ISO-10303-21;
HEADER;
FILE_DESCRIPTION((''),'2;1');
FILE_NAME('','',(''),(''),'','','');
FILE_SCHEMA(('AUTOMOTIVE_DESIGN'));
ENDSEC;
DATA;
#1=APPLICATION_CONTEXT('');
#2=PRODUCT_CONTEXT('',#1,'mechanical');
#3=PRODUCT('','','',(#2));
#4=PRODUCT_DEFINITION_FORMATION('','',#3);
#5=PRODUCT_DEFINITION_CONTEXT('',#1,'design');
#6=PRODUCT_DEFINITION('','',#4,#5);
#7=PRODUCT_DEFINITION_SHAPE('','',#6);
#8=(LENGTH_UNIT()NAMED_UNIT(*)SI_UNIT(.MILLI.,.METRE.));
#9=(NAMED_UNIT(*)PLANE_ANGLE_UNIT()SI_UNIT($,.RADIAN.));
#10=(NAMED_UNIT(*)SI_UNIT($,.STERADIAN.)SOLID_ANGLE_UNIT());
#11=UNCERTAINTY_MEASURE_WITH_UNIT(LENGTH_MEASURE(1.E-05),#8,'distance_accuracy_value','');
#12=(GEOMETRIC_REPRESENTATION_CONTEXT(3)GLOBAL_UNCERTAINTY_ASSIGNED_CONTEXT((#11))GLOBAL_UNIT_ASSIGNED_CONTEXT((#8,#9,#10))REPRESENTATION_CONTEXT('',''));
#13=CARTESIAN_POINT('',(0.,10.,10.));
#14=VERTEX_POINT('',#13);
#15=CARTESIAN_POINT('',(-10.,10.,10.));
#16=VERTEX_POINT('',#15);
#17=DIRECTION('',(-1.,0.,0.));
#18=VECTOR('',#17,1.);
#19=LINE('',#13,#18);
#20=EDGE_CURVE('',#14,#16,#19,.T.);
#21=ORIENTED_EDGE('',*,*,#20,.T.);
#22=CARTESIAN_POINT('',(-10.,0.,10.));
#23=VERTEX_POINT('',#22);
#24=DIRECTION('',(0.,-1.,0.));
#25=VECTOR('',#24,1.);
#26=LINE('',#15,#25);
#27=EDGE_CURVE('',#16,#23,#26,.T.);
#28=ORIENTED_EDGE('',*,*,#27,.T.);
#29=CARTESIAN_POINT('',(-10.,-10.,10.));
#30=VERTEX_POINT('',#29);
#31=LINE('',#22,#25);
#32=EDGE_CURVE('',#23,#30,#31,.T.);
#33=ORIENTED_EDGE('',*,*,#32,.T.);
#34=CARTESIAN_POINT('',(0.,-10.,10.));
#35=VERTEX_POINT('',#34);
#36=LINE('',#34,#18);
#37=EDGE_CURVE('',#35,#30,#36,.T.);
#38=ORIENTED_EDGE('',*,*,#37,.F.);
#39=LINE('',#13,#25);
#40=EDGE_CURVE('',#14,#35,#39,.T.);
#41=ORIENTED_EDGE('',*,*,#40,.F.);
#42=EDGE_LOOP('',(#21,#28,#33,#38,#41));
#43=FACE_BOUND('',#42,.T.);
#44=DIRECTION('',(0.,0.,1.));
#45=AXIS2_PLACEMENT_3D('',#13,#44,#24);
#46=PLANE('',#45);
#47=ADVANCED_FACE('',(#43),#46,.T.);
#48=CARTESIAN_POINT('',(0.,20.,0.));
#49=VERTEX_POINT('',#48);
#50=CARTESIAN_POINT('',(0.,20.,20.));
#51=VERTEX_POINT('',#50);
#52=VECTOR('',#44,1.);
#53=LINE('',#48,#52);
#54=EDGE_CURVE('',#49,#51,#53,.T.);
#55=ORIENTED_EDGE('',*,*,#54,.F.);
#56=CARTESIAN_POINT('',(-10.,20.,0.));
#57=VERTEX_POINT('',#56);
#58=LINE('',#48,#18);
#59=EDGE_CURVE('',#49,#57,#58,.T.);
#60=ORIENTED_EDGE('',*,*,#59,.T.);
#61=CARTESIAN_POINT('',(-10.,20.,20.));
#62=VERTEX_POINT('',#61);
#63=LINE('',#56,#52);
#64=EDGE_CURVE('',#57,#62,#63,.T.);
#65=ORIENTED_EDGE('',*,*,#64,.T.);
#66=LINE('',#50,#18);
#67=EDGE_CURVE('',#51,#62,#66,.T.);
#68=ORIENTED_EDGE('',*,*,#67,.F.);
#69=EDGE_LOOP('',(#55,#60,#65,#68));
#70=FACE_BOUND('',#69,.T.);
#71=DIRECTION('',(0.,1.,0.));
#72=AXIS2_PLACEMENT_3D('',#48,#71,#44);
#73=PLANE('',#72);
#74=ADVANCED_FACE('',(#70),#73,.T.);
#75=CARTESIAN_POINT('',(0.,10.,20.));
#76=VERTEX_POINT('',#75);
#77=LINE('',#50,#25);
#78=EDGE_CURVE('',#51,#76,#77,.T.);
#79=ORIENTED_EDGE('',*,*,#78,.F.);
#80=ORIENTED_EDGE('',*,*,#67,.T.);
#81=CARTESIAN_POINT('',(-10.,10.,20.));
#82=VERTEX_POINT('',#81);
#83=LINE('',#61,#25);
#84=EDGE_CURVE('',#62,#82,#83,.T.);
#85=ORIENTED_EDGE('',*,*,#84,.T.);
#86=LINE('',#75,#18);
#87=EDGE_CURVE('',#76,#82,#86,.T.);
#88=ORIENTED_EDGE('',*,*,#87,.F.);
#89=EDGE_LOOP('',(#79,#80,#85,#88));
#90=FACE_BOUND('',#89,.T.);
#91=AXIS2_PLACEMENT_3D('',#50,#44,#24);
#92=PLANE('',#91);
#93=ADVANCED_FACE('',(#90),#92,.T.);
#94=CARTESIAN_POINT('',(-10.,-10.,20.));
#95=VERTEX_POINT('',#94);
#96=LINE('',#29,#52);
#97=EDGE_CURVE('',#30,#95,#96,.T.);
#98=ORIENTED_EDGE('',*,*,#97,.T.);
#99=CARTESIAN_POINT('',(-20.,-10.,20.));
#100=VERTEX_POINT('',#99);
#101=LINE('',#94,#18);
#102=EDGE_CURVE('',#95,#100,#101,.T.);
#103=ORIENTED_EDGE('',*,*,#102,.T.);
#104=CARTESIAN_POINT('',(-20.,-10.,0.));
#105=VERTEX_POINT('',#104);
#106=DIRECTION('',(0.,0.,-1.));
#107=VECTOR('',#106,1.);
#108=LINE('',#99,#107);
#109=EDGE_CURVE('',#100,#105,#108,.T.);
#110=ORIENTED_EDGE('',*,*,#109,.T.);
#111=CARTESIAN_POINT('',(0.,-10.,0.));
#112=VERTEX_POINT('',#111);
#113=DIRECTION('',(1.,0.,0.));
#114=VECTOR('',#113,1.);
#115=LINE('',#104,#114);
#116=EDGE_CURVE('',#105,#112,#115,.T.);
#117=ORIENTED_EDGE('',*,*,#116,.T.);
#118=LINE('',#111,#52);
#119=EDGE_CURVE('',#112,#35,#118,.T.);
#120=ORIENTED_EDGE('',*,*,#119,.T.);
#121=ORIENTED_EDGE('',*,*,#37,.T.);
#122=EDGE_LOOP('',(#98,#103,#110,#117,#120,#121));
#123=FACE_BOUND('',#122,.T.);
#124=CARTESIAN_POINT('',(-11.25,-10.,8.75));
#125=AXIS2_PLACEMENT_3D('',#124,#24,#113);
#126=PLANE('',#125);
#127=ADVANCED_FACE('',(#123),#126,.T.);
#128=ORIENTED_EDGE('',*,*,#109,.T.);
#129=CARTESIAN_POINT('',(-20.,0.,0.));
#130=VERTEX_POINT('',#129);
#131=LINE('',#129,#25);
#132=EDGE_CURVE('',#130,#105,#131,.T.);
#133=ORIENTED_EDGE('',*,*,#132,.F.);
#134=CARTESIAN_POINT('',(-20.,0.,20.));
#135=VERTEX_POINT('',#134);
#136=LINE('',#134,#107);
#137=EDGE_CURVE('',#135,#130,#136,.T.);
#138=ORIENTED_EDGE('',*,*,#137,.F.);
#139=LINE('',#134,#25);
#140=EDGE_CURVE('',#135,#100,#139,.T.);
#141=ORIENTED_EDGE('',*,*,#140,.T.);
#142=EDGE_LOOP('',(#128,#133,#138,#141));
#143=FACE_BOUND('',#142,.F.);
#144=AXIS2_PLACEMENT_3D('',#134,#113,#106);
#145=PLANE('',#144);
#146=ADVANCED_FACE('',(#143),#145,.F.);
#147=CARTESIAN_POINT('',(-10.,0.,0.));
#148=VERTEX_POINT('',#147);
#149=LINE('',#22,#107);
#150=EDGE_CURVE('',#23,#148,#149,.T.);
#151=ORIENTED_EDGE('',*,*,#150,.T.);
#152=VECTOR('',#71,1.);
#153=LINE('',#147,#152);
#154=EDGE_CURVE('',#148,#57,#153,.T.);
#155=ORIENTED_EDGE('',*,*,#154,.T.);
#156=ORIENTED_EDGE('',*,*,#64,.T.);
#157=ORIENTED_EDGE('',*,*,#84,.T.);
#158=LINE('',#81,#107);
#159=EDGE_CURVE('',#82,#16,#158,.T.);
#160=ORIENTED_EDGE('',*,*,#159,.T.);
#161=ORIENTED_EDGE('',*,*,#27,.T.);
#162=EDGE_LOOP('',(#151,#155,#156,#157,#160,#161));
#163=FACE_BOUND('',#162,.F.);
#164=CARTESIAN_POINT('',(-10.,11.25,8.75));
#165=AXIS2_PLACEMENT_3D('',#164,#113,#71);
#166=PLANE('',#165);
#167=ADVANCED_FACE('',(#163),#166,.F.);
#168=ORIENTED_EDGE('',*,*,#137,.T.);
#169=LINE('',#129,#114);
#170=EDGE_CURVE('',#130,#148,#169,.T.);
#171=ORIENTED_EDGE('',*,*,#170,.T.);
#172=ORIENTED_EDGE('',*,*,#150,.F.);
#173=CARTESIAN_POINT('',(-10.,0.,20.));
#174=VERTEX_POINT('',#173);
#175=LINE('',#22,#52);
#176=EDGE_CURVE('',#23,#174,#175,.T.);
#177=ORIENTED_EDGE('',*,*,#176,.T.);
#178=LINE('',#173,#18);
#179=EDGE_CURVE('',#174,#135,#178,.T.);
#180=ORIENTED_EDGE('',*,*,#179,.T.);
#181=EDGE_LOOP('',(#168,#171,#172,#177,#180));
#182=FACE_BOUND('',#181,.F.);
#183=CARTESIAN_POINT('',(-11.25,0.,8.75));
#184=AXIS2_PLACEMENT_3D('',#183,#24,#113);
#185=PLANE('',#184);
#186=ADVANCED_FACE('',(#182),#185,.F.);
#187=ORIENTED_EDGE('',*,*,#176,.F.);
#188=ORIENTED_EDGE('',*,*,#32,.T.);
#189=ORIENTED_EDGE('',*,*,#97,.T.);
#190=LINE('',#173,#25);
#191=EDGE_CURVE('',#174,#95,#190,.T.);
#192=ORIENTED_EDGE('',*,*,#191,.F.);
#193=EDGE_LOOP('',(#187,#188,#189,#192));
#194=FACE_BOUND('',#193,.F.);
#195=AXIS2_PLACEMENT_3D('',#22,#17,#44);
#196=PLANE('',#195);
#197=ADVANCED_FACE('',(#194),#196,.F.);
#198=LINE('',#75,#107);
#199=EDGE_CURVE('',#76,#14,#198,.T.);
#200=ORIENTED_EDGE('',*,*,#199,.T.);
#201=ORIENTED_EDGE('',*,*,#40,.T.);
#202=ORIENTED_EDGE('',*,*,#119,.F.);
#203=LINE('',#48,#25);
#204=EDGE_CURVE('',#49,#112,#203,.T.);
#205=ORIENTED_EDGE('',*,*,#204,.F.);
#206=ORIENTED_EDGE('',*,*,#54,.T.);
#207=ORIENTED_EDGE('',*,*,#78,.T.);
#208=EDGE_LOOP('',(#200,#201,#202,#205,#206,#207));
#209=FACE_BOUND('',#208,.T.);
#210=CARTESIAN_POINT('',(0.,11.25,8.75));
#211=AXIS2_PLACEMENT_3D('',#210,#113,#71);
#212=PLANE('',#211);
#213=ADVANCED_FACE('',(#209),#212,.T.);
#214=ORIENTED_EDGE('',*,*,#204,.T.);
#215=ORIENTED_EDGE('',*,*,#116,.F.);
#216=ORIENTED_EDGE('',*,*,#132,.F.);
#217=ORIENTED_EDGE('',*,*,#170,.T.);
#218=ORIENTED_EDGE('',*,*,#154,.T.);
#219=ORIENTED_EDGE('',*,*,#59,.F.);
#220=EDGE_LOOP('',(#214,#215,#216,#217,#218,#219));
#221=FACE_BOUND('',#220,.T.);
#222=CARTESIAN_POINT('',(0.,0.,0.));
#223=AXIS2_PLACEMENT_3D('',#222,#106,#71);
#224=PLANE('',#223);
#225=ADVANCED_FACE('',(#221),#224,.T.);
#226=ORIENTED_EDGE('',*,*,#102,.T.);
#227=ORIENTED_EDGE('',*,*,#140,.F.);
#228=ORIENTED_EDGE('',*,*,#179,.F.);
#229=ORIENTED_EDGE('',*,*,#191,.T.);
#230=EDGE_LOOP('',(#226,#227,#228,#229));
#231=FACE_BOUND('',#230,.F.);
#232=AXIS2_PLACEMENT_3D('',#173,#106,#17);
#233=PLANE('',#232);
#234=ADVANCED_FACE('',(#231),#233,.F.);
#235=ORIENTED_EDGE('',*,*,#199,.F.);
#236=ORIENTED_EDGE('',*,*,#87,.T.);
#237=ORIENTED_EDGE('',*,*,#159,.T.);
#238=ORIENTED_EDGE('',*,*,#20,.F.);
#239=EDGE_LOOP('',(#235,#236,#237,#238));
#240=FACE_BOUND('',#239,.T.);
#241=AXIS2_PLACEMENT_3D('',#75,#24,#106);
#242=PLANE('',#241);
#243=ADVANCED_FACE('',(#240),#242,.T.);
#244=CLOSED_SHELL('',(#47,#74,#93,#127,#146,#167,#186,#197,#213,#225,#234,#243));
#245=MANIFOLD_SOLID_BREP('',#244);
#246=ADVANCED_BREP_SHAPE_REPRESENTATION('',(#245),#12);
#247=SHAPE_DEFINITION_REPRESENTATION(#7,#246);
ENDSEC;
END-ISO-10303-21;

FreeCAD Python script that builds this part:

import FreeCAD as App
import Part
import Sketcher

V = App.Vector
Q = App.Units.Quantity

doc = App.newDocument("Part")
body = doc.addObject("PartDesign::Body", "Body")

# Sketch on XZ plane
sketch1 = body.newObject("Sketcher::SketchObject", "Sketch")
sketch1.AttachmentSupport = (doc.getObject("XZ_Plane"), [""])
sketch1.MapMode = "FlatFace"
sketch1.addGeometry(Part.LineSegment(V(-10, 20, 0), V(-20, 20, 0)), False)
sketch1.addGeometry(Part.LineSegment(V(-20, 20, 0), V(-20, 0, 0)), False)
sketch1.addGeometry(Part.LineSegment(V(-20, 0, 0), V(0, 0, 0)), False)
sketch1.addGeometry(Part.LineSegment(V(0, 0, 0), V(0, 10, 0)), False)
sketch1.addGeometry(Part.LineSegment(V(0, 10, 0), V(-10, 10, 0)), False)
sketch1.addGeometry(Part.LineSegment(V(-10, 10, 0), V(-10, 20, 0)), False)
sketch1.addConstraint(Sketcher.Constraint("Coincident", 0, 2, 1, 1))
sketch1.addConstraint(Sketcher.Constraint("Coincident", 1, 2, 2, 1))
sketch1.addConstraint(Sketcher.Constraint("Coincident", 2, 2, 3, 1))
sketch1.addConstraint(Sketcher.Constraint("Coincident", 3, 2, 4, 1))
sketch1.addConstraint(Sketcher.Constraint("Coincident", 4, 2, 5, 1))
sketch1.addConstraint(Sketcher.Constraint("Coincident", 5, 2, 0, 1))
sketch1.addConstraint(Sketcher.Constraint("Horizontal", 0))
sketch1.addConstraint(Sketcher.Constraint("Vertical", 1))
sketch1.addConstraint(Sketcher.Constraint("Horizontal", 2))
sketch1.addConstraint(Sketcher.Constraint("Vertical", 3))
sketch1.addConstraint(Sketcher.Constraint("Horizontal", 4))
sketch1.addConstraint(Sketcher.Constraint("Vertical", 5))
sketch1.addConstraint(Sketcher.Constraint("Coincident", 2, 2, -1, 1))
sketch1.addConstraint(Sketcher.Constraint("Equal", 0, 4))
sketch1.addConstraint(Sketcher.Constraint("Equal", 2, 1))
sketch1.addConstraint(Sketcher.Constraint("Equal", 4, 3))
sketch1.addConstraint(Sketcher.Constraint("DistanceX", 0, 2, 0, 1, Q("10 mm")))
pad1 = body.newObject("PartDesign::Pad", "Pad")
pad1.Profile = sketch1
pad1.Length = 10

# Sketch on YZ plane
sketch2 = body.newObject("Sketcher::SketchObject", "Sketch001")
sketch2.AttachmentSupport = (doc.getObject("YZ_Plane"), [""])
sketch2.MapMode = "FlatFace"
sketch2.addGeometry(Part.LineSegment(V(0, 10, 0), V(0, 0, 0)), False)
sketch2.addGeometry(Part.LineSegment(V(0, 0, 0), V(20, 0, 0)), False)
sketch2.addGeometry(Part.LineSegment(V(20, 0, 0), V(20, 20, 0)), False)
sketch2.addGeometry(Part.LineSegment(V(20, 20, 0), V(10, 20, 0)), False)
sketch2.addGeometry(Part.LineSegment(V(10, 20, 0), V(10, 10, 0)), False)
sketch2.addGeometry(Part.LineSegment(V(10, 10, 0), V(0, 10, 0)), False)
sketch2.addConstraint(Sketcher.Constraint("Coincident", 0, 2, 1, 1))
sketch2.addConstraint(Sketcher.Constraint("Coincident", 1, 2, 2, 1))
sketch2.addConstraint(Sketcher.Constraint("Coincident", 2, 2, 3, 1))
sketch2.addConstraint(Sketcher.Constraint("Coincident", 3, 2, 4, 1))
sketch2.addConstraint(Sketcher.Constraint("Coincident", 4, 2, 5, 1))
sketch2.addConstraint(Sketcher.Constraint("Coincident", 5, 2, 0, 1))
sketch2.addConstraint(Sketcher.Constraint("Vertical", 0))
sketch2.addConstraint(Sketcher.Constraint("Horizontal", 1))
sketch2.addConstraint(Sketcher.Constraint("Vertical", 2))
sketch2.addConstraint(Sketcher.Constraint("Horizontal", 3))
sketch2.addConstraint(Sketcher.Constraint("Vertical", 4))
sketch2.addConstraint(Sketcher.Constraint("Horizontal", 5))
sketch2.addConstraint(Sketcher.Constraint("Coincident", 0, 2, -1, 1))
sketch2.addConstraint(Sketcher.Constraint("Equal", 3, 5))
sketch2.addConstraint(Sketcher.Constraint("Equal", 5, 0))
sketch2.addConstraint(Sketcher.Constraint("Equal", 1, 2))
sketch2.addConstraint(Sketcher.Constraint("DistanceX", 1, 1, 1, 2, Q("20 mm")))
pad2 = body.newObject("PartDesign::Pad", "Pad001")
pad2.Profile = sketch2
pad2.Length = 10
pad2.Reversed = True

doc.recompute()
